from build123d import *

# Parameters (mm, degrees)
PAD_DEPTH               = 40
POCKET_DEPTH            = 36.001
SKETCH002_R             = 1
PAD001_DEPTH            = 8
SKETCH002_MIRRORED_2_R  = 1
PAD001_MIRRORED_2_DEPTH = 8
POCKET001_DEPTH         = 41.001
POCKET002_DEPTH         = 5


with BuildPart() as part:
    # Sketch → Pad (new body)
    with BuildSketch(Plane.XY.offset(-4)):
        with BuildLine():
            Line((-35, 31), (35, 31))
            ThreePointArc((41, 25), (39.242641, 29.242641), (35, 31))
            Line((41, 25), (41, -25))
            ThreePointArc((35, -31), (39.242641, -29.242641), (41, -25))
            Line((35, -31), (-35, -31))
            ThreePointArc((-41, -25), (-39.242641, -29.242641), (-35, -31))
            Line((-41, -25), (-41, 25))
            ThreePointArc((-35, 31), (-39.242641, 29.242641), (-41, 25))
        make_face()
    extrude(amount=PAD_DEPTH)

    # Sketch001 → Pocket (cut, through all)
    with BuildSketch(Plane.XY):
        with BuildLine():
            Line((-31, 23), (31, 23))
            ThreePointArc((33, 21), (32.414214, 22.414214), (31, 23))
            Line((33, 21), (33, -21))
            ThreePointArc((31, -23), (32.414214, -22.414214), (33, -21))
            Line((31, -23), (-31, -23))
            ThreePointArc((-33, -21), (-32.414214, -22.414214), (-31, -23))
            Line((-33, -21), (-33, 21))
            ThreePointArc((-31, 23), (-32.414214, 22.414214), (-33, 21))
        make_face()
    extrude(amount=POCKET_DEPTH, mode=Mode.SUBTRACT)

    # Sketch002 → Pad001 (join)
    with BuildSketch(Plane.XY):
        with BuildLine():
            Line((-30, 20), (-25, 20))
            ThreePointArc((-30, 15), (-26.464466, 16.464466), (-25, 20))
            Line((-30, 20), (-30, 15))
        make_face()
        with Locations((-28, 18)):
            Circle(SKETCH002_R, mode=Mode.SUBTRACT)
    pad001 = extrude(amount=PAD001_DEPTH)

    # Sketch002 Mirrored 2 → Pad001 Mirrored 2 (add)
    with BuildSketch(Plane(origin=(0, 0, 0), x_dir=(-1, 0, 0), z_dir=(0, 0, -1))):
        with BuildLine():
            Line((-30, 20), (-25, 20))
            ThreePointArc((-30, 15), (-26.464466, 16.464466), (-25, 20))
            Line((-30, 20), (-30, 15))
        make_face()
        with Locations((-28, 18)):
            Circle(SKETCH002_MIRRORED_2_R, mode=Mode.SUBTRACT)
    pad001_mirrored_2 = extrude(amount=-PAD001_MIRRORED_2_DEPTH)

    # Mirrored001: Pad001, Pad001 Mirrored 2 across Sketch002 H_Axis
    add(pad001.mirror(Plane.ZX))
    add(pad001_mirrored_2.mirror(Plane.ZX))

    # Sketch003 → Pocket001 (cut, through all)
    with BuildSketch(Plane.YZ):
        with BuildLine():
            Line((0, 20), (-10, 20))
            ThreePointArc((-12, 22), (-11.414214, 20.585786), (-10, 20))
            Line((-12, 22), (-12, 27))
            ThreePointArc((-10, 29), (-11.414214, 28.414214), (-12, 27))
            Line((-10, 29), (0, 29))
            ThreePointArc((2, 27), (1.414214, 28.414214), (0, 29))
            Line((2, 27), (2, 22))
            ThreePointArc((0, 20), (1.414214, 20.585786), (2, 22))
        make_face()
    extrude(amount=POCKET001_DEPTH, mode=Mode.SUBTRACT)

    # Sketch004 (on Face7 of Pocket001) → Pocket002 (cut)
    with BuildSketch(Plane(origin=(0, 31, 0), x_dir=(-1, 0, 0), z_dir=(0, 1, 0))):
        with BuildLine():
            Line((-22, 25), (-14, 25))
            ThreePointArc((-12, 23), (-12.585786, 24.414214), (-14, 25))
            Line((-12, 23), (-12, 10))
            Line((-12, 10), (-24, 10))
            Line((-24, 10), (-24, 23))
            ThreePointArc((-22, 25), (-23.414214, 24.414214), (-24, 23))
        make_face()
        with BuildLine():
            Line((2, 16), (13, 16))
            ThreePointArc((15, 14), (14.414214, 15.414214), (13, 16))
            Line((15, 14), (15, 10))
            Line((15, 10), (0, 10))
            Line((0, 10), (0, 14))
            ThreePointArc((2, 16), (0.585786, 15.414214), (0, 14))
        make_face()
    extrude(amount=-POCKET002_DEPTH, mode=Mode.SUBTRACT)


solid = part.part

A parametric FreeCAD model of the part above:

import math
import FreeCAD as App
import Part
import Sketcher

doc = App.newDocument("Part")
body = doc.addObject("PartDesign::Body", "Body")

sketch1 = body.newObject("Sketcher::SketchObject", "Sketch")
sketch1.AttachmentSupport = (doc.getObject("XY_Plane"), [""])
sketch1.MapMode = "FlatFace"
sketch1.AttachmentOffset = App.Placement(App.Vector(0, 0, -4), App.Rotation())
sketch1.addGeometry([
    Part.LineSegment(App.Vector(35, 31, 0), App.Vector(-35, 31, 0)),
    Part.ArcOfCircle(Part.Circle(App.Vector(-35, 25, 0), App.Vector(0, 0, 1), 6), math.radians(90), math.radians(180)),
    Part.LineSegment(App.Vector(-41, 25, 0), App.Vector(-41, -25, 0)),
    Part.ArcOfCircle(Part.Circle(App.Vector(-35, -25, 0), App.Vector(0, 0, 1), 6), math.radians(180), math.radians(270)),
    Part.LineSegment(App.Vector(-35, -31, 0), App.Vector(35, -31, 0)),
    Part.ArcOfCircle(Part.Circle(App.Vector(35, -25, 0), App.Vector(0, 0, 1), 6), math.radians(-90), math.radians(0)),
    Part.LineSegment(App.Vector(41, -25, 0), App.Vector(41, 25, 0)),
    Part.ArcOfCircle(Part.Circle(App.Vector(35, 25, 0), App.Vector(0, 0, 1), 6), math.radians(0), math.radians(90)),
], False)
sketch1.addConstraint([
    Sketcher.Constraint("Tangent", 0, 2, 1, 1),
    Sketcher.Constraint("Tangent", 1, 2, 2, 1),
    Sketcher.Constraint("Tangent", 2, 2, 3, 1),
    Sketcher.Constraint("Tangent", 3, 2, 4, 1),
    Sketcher.Constraint("Tangent", 4, 2, 5, 1),
    Sketcher.Constraint("Tangent", 5, 2, 6, 1),
    Sketcher.Constraint("Tangent", 6, 2, 7, 1),
    Sketcher.Constraint("Tangent", 7, 2, 0, 1),
    Sketcher.Constraint("Horizontal", 0),
    Sketcher.Constraint("Vertical", 2),
    Sketcher.Constraint("Horizontal", 4),
    Sketcher.Constraint("Vertical", 6),
    Sketcher.Constraint("Equal", 1, 3),
    Sketcher.Constraint("Equal", 3, 5),
    Sketcher.Constraint("Equal", 5, 7),
    Sketcher.Constraint("Symmetric", 1, 3, 5, 3, -1, 1),
    Sketcher.Constraint("Radius", 1, 5.999999),
    Sketcher.Constraint("DistanceX", 0, 2, 0, 1, 70.0),
    Sketcher.Constraint("DistanceY", 2, 2, 2, 1, 50.0),
])
pad1 = body.newObject("PartDesign::Pad", "Pad")
pad1.Profile = sketch1
pad1.Length = 40

sketch2 = body.newObject("Sketcher::SketchObject", "Sketch001")
sketch2.AttachmentSupport = (doc.getObject("XY_Plane"), [""])
sketch2.MapMode = "FlatFace"
sketch2.addGeometry([
    Part.LineSegment(App.Vector(31, 23, 0), App.Vector(-31, 23, 0)),
    Part.ArcOfCircle(Part.Circle(App.Vector(-31, 21, 0), App.Vector(0, 0, 1), 2), math.radians(90), math.radians(180)),
    Part.LineSegment(App.Vector(-33, 21, 0), App.Vector(-33, -21, 0)),
    Part.ArcOfCircle(Part.Circle(App.Vector(-31, -21, 0), App.Vector(0, 0, 1), 2), math.radians(180), math.radians(270)),
    Part.LineSegment(App.Vector(-31, -23, 0), App.Vector(31, -23, 0)),
    Part.ArcOfCircle(Part.Circle(App.Vector(31, -21, 0), App.Vector(0, 0, 1), 2), math.radians(-90), math.radians(0)),
    Part.LineSegment(App.Vector(33, -21, 0), App.Vector(33, 21, 0)),
    Part.ArcOfCircle(Part.Circle(App.Vector(31, 21, 0), App.Vector(0, 0, 1), 2), math.radians(0), math.radians(90)),
], False)
sketch2.addConstraint([
    Sketcher.Constraint("Tangent", 0, 2, 1, 1),
    Sketcher.Constraint("Tangent", 1, 2, 2, 1),
    Sketcher.Constraint("Tangent", 2, 2, 3, 1),
    Sketcher.Constraint("Tangent", 3, 2, 4, 1),
    Sketcher.Constraint("Tangent", 4, 2, 5, 1),
    Sketcher.Constraint("Tangent", 5, 2, 6, 1),
    Sketcher.Constraint("Tangent", 6, 2, 7, 1),
    Sketcher.Constraint("Tangent", 7, 2, 0, 1),
    Sketcher.Constraint("Horizontal", 0),
    Sketcher.Constraint("Vertical", 2),
    Sketcher.Constraint("Horizontal", 4),
    Sketcher.Constraint("Vertical", 6),
    Sketcher.Constraint("Equal", 1, 3),
    Sketcher.Constraint("Equal", 3, 5),
    Sketcher.Constraint("Equal", 5, 7),
    Sketcher.Constraint("Symmetric", 1, 3, 5, 3, -1, 1),
    Sketcher.Constraint("Radius", 1, 1.999999),
    Sketcher.Constraint("DistanceX", 0, 2, 0, 1, 62.0),
    Sketcher.Constraint("DistanceY", 2, 2, 2, 1, 42.0),
])
pocket1 = body.newObject("PartDesign::Pocket", "Pocket")
pocket1.Profile = sketch2
pocket1.Type = "ThroughAll"
pocket1.Reversed = True

sketch3 = body.newObject("Sketcher::SketchObject", "Sketch002")
sketch3.AttachmentSupport = (doc.getObject("XY_Plane"), [""])
sketch3.MapMode = "FlatFace"
sketch3.addGeometry([
    Part.LineSegment(App.Vector(-25, 20, 0), App.Vector(-30, 20, 0)),
    Part.LineSegment(App.Vector(-30, 20, 0), App.Vector(-30, 15, 0)),
    Part.ArcOfCircle(Part.Circle(App.Vector(-30, 20, 0), App.Vector(0, 0, 1), 5), math.radians(-90), math.radians(0)),
    Part.Circle(App.Vector(-28, 18, 0), App.Vector(0, 0, 1), 1),
], False)
sketch3.addConstraint([
    Sketcher.Constraint("Coincident", 0, 2, 1, 1),
    Sketcher.Constraint("Coincident", 1, 2, 2, 1),
    Sketcher.Constraint("Coincident", 2, 2, 0, 1),
    Sketcher.Constraint("Horizontal", 0),
    Sketcher.Constraint("Vertical", 1),
    Sketcher.Constraint("Coincident", 0, 2, 2, 3),
    Sketcher.Constraint("Diameter", 3, 2.0),
    Sketcher.Constraint("Radius", 2, 5.0),
    Sketcher.Constraint("DistanceX", 2, 3, -1, 1, 30.0),
    Sketcher.Constraint("DistanceY", -1, 1, 2, 3, 20.0),
    Sketcher.Constraint("DistanceX", 3, 3, -1, 1, 28.0),
    Sketcher.Constraint("DistanceY", -1, 1, 3, 3, 18.0),
])
pad2 = body.newObject("PartDesign::Pad", "Pad001")
pad2.Profile = sketch3
pad2.Length = 8

sketch4 = body.newObject("Sketcher::SketchObject", "Sketch003")
sketch4.AttachmentSupport = (doc.getObject("XY_Plane"), [""])
sketch4.MapMode = "FlatFace"
sketch4.addGeometry([
    Part.LineSegment(App.Vector(25, 20, 0), App.Vector(30, 20, 0)),
    Part.LineSegment(App.Vector(30, 20, 0), App.Vector(30, 15, 0)),
    Part.ArcOfCircle(Part.Circle(App.Vector(30, 20, 0), App.Vector(0, 0, 1), 5), math.radians(180), math.radians(270)),
    Part.Circle(App.Vector(28, 18, 0), App.Vector(0, 0, 1), 1),
], False)
sketch4.addConstraint([
    Sketcher.Constraint("Coincident", 0, 2, 1, 1),
    Sketcher.Constraint("Coincident", 1, 2, 2, 2),
    Sketcher.Constraint("Coincident", 2, 1, 0, 1),
    Sketcher.Constraint("Horizontal", 0),
    Sketcher.Constraint("Vertical", 1),
    Sketcher.Constraint("Coincident", 0, 2, 2, 3),
    Sketcher.Constraint("Diameter", 3, 2.0),
    Sketcher.Constraint("Radius", 2, 5.0),
    Sketcher.Constraint("DistanceX", -1, 1, 2, 3, 30.0),
    Sketcher.Constraint("DistanceY", -1, 1, 2, 3, 20.0),
    Sketcher.Constraint("DistanceX", -1, 1, 3, 3, 28.0),
    Sketcher.Constraint("DistanceY", -1, 1, 3, 3, 18.0),
])
pad3 = body.newObject("PartDesign::Pad", "Pad002")
pad3.Profile = sketch4
pad3.Length = 8
doc.recompute()

mirrored = body.newObject("PartDesign::Mirrored", "Mirrored")
mirrored.Originals = [pad2, pad3]
mirrored.MirrorPlane = (doc.getObject("XZ_Plane"), [""])
body.Tip = mirrored

sketch5 = body.newObject("Sketcher::SketchObject", "Sketch004")
sketch5.AttachmentSupport = (doc.getObject("YZ_Plane"), [""])
sketch5.MapMode = "FlatFace"
sketch5.addGeometry([
    Part.LineSegment(App.Vector(-10, 20, 0), App.Vector(0, 20, 0)),
    Part.ArcOfCircle(Part.Circle(App.Vector(0, 22, 0), App.Vector(0, 0, 1), 2), math.radians(-90), math.radians(0)),
    Part.LineSegment(App.Vector(2, 22, 0), App.Vector(2, 27, 0)),
    Part.ArcOfCircle(Part.Circle(App.Vector(0, 27, 0), App.Vector(0, 0, 1), 2), math.radians(0), math.radians(90)),
    Part.LineSegment(App.Vector(0, 29, 0), App.Vector(-10, 29, 0)),
    Part.ArcOfCircle(Part.Circle(App.Vector(-10, 27, 0), App.Vector(0, 0, 1), 2), math.radians(90), math.radians(180)),
    Part.LineSegment(App.Vector(-12, 27, 0), App.Vector(-12, 22, 0)),
    Part.ArcOfCircle(Part.Circle(App.Vector(-10, 22, 0), App.Vector(0, 0, 1), 2), math.radians(180), math.radians(270)),
], False)
sketch5.addConstraint([
    Sketcher.Constraint("Tangent", 0, 2, 1, 1),
    Sketcher.Constraint("Tangent", 1, 2, 2, 1),
    Sketcher.Constraint("Tangent", 2, 2, 3, 1),
    Sketcher.Constraint("Tangent", 3, 2, 4, 1),
    Sketcher.Constraint("Tangent", 4, 2, 5, 1),
    Sketcher.Constraint("Tangent", 5, 2, 6, 1),
    Sketcher.Constraint("Tangent", 6, 2, 7, 1),
    Sketcher.Constraint("Tangent", 7, 2, 0, 1),
    Sketcher.Constraint("Horizontal", 0),
    Sketcher.Constraint("Vertical", 2),
    Sketcher.Constraint("Horizontal", 4),
    Sketcher.Constraint("Vertical", 6),
    Sketcher.Constraint("Equal", 1, 3),
    Sketcher.Constraint("Equal", 3, 5),
    Sketcher.Constraint("Equal", 5, 7),
    Sketcher.Constraint("PointOnObject", 1, 3, -2),
    Sketcher.Constraint("Radius", 1, 1.999999),
    Sketcher.Constraint("DistanceX", 0, 1, 0, 2, 10.0),
    Sketcher.Constraint("DistanceY", 2, 1, 2, 2, 5.0),
    Sketcher.Constraint("DistanceY", -1, 1, 1, 3, 21.999999),
])
pocket2 = body.newObject("PartDesign::Pocket", "Pocket001")
pocket2.Profile = sketch5
pocket2.Type = "ThroughAll"
pocket2.Reversed = True

sketch6 = body.newObject("Sketcher::SketchObject", "Sketch005")
sketch6.AttachmentSupport = (doc.getObject("XZ_Plane"), [""])
sketch6.MapMode = "FlatFace"
sketch6.AttachmentOffset = App.Placement(App.Vector(0, 0, -31), App.Rotation())
sketch6.addGeometry([
    Part.LineSegment(App.Vector(14, 25, 0), App.Vector(22, 25, 0)),
    Part.ArcOfCircle(Part.Circle(App.Vector(22, 23, 0), App.Vector(0, 0, 1), 2), math.radians(0), math.radians(90)),
    Part.LineSegment(App.Vector(24, 23, 0), App.Vector(24, 10, 0)),
    Part.LineSegment(App.Vector(24, 10, 0), App.Vector(12, 10, 0)),
    Part.LineSegment(App.Vector(12, 10, 0), App.Vector(12, 23, 0)),
    Part.ArcOfCircle(Part.Circle(App.Vector(14, 23, 0), App.Vector(0, 0, 1), 2), math.radians(90), math.radians(180)),
    Part.LineSegment(App.Vector(-13, 16, 0), App.Vector(-2, 16, 0)),
    Part.ArcOfCircle(Part.Circle(App.Vector(-2, 14, 0), App.Vector(0, 0, 1), 2), math.radians(0), math.radians(90)),
    Part.LineSegment(App.Vector(0, 14, 0), App.Vector(0, 10, 0)),
    Part.LineSegment(App.Vector(0, 10, 0), App.Vector(-15, 10, 0)),
    Part.LineSegment(App.Vector(-15, 10, 0), App.Vector(-15, 14, 0)),
    Part.ArcOfCircle(Part.Circle(App.Vector(-13, 14, 0), App.Vector(0, 0, 1), 2), math.radians(90), math.radians(180)),
], False)
sketch6.addConstraint([
    Sketcher.Constraint("Tangent", 0, 2, 1, 2),
    Sketcher.Constraint("Tangent", 1, 1, 2, 1),
    Sketcher.Constraint("Coincident", 2, 2, 3, 1),
    Sketcher.Constraint("Coincident", 3, 2, 4, 1),
    Sketcher.Constraint("Tangent", 4, 2, 5, 2),
    Sketcher.Constraint("Tangent", 5, 1, 0, 1),
    Sketcher.Constraint("Tangent", 6, 2, 7, 2),
    Sketcher.Constraint("Tangent", 7, 1, 8, 1),
    Sketcher.Constraint("Coincident", 8, 2, 9, 1),
    Sketcher.Constraint("Coincident", 9, 2, 10, 1),
    Sketcher.Constraint("Tangent", 10, 2, 11, 2),
    Sketcher.Constraint("Tangent", 11, 1, 6, 1),
    Sketcher.Constraint("Horizontal", 0),
    Sketcher.Constraint("Vertical", 2),
    Sketcher.Constraint("Horizontal", 3),
    Sketcher.Constraint("Vertical", 4),
    Sketcher.Constraint("Horizontal", 6),
    Sketcher.Constraint("Vertical", 8),
    Sketcher.Constraint("Horizontal", 9),
    Sketcher.Constraint("Vertical", 10),
    Sketcher.Constraint("Equal", 1, 5),
    Sketcher.Constraint("Equal", 5, 7),
    Sketcher.Constraint("Equal", 7, 11),
    Sketcher.Constraint("PointOnObject", 7, 1, -2),
    Sketcher.Constraint("Horizontal", 3, 2, 8, 2),
    Sketcher.Constraint("Radius", 1, 1.999999),
    Sketcher.Constraint("DistanceX", 0, 1, 0, 2, 8.0),
    Sketcher.Constraint("DistanceX", 6, 1, 6, 2, 11.0),
    Sketcher.Constraint("DistanceY", 2, 2, 2, 1, 13.0),
    Sketcher.Constraint("DistanceY", 8, 2, 8, 1, 4.0),
    Sketcher.Constraint("DistanceX", -1, 1, 1, 3, 22.000001),
    Sketcher.Constraint("DistanceY", -1, 1, 1, 3, 23.000001),
])
pocket3 = body.newObject("PartDesign::Pocket", "Pocket002")
pocket3.Profile = sketch6
pocket3.Length = 5
pocket3.Reversed = True

doc.recompute()
